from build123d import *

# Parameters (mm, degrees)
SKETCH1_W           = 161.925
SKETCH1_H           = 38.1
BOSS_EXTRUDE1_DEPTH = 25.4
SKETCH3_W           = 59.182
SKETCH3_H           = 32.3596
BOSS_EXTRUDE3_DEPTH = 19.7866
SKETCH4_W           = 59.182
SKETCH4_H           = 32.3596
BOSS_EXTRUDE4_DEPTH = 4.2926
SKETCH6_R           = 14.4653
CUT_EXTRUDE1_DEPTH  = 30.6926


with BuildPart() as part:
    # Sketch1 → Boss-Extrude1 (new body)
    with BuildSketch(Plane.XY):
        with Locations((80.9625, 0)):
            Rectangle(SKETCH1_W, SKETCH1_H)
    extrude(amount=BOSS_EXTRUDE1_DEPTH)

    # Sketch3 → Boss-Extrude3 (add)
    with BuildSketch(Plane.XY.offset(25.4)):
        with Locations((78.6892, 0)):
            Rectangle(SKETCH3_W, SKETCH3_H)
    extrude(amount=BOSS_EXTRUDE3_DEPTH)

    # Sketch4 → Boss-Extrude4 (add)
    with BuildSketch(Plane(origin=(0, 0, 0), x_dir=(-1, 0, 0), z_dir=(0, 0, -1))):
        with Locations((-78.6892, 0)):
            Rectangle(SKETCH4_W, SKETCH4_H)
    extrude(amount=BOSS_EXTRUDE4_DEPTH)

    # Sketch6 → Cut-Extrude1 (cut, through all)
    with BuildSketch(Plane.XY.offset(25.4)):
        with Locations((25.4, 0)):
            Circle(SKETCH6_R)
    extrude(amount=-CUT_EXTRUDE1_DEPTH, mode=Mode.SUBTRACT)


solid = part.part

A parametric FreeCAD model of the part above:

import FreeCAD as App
import Part
import Sketcher
Q = App.Units.Quantity

doc = App.newDocument("Part")
body = doc.addObject("PartDesign::Body", "Body")

# Sketch on XY plane
sketch1 = body.newObject("Sketcher::SketchObject", "Sketch")
sketch1.AttachmentSupport = (doc.getObject("XY_Plane"), [""])
sketch1.MapMode = "FlatFace"
sketch1.addGeometry(Part.LineSegment(App.Vector(0, 19, 0), App.Vector(0, -19, 0)), False)
sketch1.addGeometry(Part.LineSegment(App.Vector(0, -19, 0), App.Vector(162, -19, 0)), False)
sketch1.addGeometry(Part.LineSegment(App.Vector(162, -19, 0), App.Vector(162, 19, 0)), False)
sketch1.addGeometry(Part.LineSegment(App.Vector(162, 19, 0), App.Vector(0, 19, 0)), False)
sketch1.addConstraint(Sketcher.Constraint("Coincident", 0, 2, 1, 1))
sketch1.addConstraint(Sketcher.Constraint("Coincident", 1, 2, 2, 1))
sketch1.addConstraint(Sketcher.Constraint("Coincident", 2, 2, 3, 1))
sketch1.addConstraint(Sketcher.Constraint("Coincident", 3, 2, 0, 1))
sketch1.addConstraint(Sketcher.Constraint("Vertical", 0))
sketch1.addConstraint(Sketcher.Constraint("Horizontal", 1))
sketch1.addConstraint(Sketcher.Constraint("Vertical", 2))
sketch1.addConstraint(Sketcher.Constraint("Horizontal", 3))
sketch1.addConstraint(Sketcher.Constraint("Symmetric", 0, 2, 3, 2, -1, 1))
sketch1.addConstraint(Sketcher.Constraint("DistanceY", 0, 2, 0, 1, Q("1.5 in")))
sketch1.addConstraint(Sketcher.Constraint("DistanceX", 1, 1, 1, 2, Q("6.375 in")))
pad1 = body.newObject("PartDesign::Pad", "Pad")
pad1.Profile = sketch1
pad1.Length = Q("1 in")

# Sketch on XY plane
sketch2 = body.newObject("Sketcher::SketchObject", "Sketch001")
sketch2.AttachmentSupport = (doc.getObject("XY_Plane"), [""])
sketch2.MapMode = "FlatFace"
sketch2.AttachmentOffset = App.Placement(App.Vector(0, 0, 1 * 25.4), App.Rotation())
sketch2.addGeometry(Part.LineSegment(App.Vector(49, 16, 0), App.Vector(49, -16, 0)), False)
sketch2.addGeometry(Part.LineSegment(App.Vector(49, -16, 0), App.Vector(108, -16, 0)), False)
sketch2.addGeometry(Part.LineSegment(App.Vector(108, -16, 0), App.Vector(108, 16, 0)), False)
sketch2.addGeometry(Part.LineSegment(App.Vector(108, 16, 0), App.Vector(49, 16, 0)), False)
sketch2.addConstraint(Sketcher.Constraint("Coincident", 0, 2, 1, 1))
sketch2.addConstraint(Sketcher.Constraint("Coincident", 1, 2, 2, 1))
sketch2.addConstraint(Sketcher.Constraint("Coincident", 2, 2, 3, 1))
sketch2.addConstraint(Sketcher.Constraint("Coincident", 3, 2, 0, 1))
sketch2.addConstraint(Sketcher.Constraint("Vertical", 0))
sketch2.addConstraint(Sketcher.Constraint("Horizontal", 1))
sketch2.addConstraint(Sketcher.Constraint("Vertical", 2))
sketch2.addConstraint(Sketcher.Constraint("Horizontal", 3))
sketch2.addConstraint(Sketcher.Constraint("DistanceX", 1, 1, 1, 2, Q("2.33 in")))
sketch2.addConstraint(Sketcher.Constraint("DistanceY", 0, 2, 0, 1, Q("1.274 in")))
sketch2.addConstraint(Sketcher.Constraint("DistanceX", -1, 1, 0, 2, Q("1.933 in")))
sketch2.addConstraint(Sketcher.Constraint("DistanceY", 0, 2, -1, 1, Q("0.637 in")))
pad2 = body.newObject("PartDesign::Pad", "Pad001")
pad2.Profile = sketch2
pad2.Length = Q("0.779 in")

# Sketch on XY plane
sketch3 = body.newObject("Sketcher::SketchObject", "Sketch002")
sketch3.AttachmentSupport = (doc.getObject("XY_Plane"), [""])
sketch3.MapMode = "FlatFace"
sketch3.addGeometry(Part.LineSegment(App.Vector(108, 16, 0), App.Vector(108, -16, 0)), False)
sketch3.addGeometry(Part.LineSegment(App.Vector(108, -16, 0), App.Vector(49, -16, 0)), False)
sketch3.addGeometry(Part.LineSegment(App.Vector(49, -16, 0), App.Vector(49, 16, 0)), False)
sketch3.addGeometry(Part.LineSegment(App.Vector(49, 16, 0), App.Vector(108, 16, 0)), False)
sketch3.addConstraint(Sketcher.Constraint("Coincident", 0, 2, 1, 1))
sketch3.addConstraint(Sketcher.Constraint("Coincident", 1, 2, 2, 1))
sketch3.addConstraint(Sketcher.Constraint("Coincident", 2, 2, 3, 1))
sketch3.addConstraint(Sketcher.Constraint("Coincident", 3, 2, 0, 1))
sketch3.addConstraint(Sketcher.Constraint("Vertical", 0))
sketch3.addConstraint(Sketcher.Constraint("Horizontal", 1))
sketch3.addConstraint(Sketcher.Constraint("Vertical", 2))
sketch3.addConstraint(Sketcher.Constraint("Horizontal", 3))
sketch3.addConstraint(Sketcher.Constraint("DistanceX", 1, 2, 1, 1, Q("2.33 in")))
sketch3.addConstraint(Sketcher.Constraint("DistanceY", 0, 2, 0, 1, Q("1.274 in")))
sketch3.addConstraint(Sketcher.Constraint("DistanceX", -1, 1, 0, 2, Q("4.263 in")))
sketch3.addConstraint(Sketcher.Constraint("DistanceY", 0, 2, -1, 1, Q("0.637 in")))
pad3 = body.newObject("PartDesign::Pad", "Pad002")
pad3.Profile = sketch3
pad3.Length = Q("0.169 in")
pad3.Reversed = True

# Sketch on XY plane
sketch4 = body.newObject("Sketcher::SketchObject", "Sketch003")
sketch4.AttachmentSupport = (doc.getObject("XY_Plane"), [""])
sketch4.MapMode = "FlatFace"
sketch4.AttachmentOffset = App.Placement(App.Vector(0, 0, 1 * 25.4), App.Rotation())
sketch4.addGeometry(Part.Circle(App.Vector(25, 0, 0), App.Vector(0, 0, 1), 14), False)
sketch4.addConstraint(Sketcher.Constraint("PointOnObject", 0, 3, -1))
sketch4.addConstraint(Sketcher.Constraint("Diameter", 0, Q("1.139 in")))
sketch4.addConstraint(Sketcher.Constraint("DistanceX", -1, 1, 0, 3, Q("1 in")))
pocket1 = body.newObject("PartDesign::Pocket", "Pocket")
pocket1.Profile = sketch4
pocket1.Type = "ThroughAll"

doc.recompute()
